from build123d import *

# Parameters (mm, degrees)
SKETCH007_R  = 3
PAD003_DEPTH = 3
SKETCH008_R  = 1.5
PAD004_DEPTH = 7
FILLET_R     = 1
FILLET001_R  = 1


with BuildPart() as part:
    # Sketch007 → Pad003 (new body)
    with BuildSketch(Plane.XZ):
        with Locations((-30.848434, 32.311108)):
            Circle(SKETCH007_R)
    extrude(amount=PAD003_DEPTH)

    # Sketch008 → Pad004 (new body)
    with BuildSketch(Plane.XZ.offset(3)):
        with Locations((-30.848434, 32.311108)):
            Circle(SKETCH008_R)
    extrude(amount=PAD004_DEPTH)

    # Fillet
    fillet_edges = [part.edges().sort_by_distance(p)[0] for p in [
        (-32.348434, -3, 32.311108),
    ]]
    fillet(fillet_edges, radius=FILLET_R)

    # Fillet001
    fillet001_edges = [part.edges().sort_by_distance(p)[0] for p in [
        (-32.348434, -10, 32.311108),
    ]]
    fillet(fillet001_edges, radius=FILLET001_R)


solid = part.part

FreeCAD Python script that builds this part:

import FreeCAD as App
import Part
import Sketcher
from FreeCAD import Vector
Q = App.Units.Quantity


def edges_at(feature, points):
    """Names of the edges that pass closest to the given points."""
    edges = feature.Shape.Edges
    near = lambda p: min(range(len(edges)), key=lambda i: edges[i].distToShape(Part.Vertex(*p))[0])
    return sorted({f"Edge{near(p) + 1}" for p in points})

doc = App.newDocument("Part")
body = doc.addObject("PartDesign::Body", "Body")

sketch1 = body.newObject("Sketcher::SketchObject", "Sketch")
sketch1.AttachmentSupport = (doc.getObject("XZ_Plane"), [""])
sketch1.MapMode = "FlatFace"
sketch1.addGeometry(Part.Circle(Vector(-30.8, 32.3, 0), Vector(0, 0, 1), 3), False)
sketch1.addConstraint(Sketcher.Constraint("Diameter", 0, Q("6 mm")))
sketch1.addConstraint(Sketcher.Constraint("DistanceX", 0, 3, -1, 1, Q("30.848434 mm")))
sketch1.addConstraint(Sketcher.Constraint("DistanceY", -1, 1, 0, 3, Q("32.311108 mm")))
pad1 = body.newObject("PartDesign::Pad", "Pad")
pad1.Profile = sketch1
pad1.Length = 3

sketch2 = body.newObject("Sketcher::SketchObject", "Sketch001")
sketch2.AttachmentSupport = (doc.getObject("XZ_Plane"), [""])
sketch2.MapMode = "FlatFace"
sketch2.AttachmentOffset = App.Placement(Vector(0, 0, 3), App.Rotation())
sketch2.addGeometry(Part.Circle(Vector(-30.8, 32.3, 0), Vector(0, 0, 1), 1.5), False)
sketch2.addConstraint(Sketcher.Constraint("Diameter", 0, Q("3 mm")))
sketch2.addConstraint(Sketcher.Constraint("DistanceX", 0, 3, -1, 1, Q("30.848434 mm")))
sketch2.addConstraint(Sketcher.Constraint("DistanceY", -1, 1, 0, 3, Q("32.311108 mm")))
pad2 = body.newObject("PartDesign::Pad", "Pad001")
pad2.Profile = sketch2
pad2.Length = 7
doc.recompute()

fillet = body.newObject("PartDesign::Fillet", "Fillet")
fillet.Base = (pad2, edges_at(pad2, [(-32.348, -3, 32.311)]))
fillet.Radius = 1
doc.recompute()

fillet2 = body.newObject("PartDesign::Fillet", "Fillet001")
fillet2.Base = (fillet, edges_at(fillet, [(-32.348, -10, 32.311)]))
fillet2.Radius = 1

doc.recompute()
